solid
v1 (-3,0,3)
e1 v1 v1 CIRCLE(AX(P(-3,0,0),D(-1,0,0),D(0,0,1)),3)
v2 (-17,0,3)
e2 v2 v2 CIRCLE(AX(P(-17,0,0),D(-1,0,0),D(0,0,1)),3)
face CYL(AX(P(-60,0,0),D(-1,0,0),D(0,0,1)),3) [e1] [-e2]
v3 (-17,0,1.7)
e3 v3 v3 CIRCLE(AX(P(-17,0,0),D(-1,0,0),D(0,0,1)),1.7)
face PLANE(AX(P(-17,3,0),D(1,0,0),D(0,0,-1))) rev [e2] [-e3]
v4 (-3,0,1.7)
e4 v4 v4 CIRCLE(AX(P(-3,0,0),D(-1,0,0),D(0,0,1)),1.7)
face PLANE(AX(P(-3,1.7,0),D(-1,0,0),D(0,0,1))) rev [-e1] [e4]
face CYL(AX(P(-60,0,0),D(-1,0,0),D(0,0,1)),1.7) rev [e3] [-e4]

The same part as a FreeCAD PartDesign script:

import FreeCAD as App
import Part
import Sketcher

V = App.Vector
Q = App.Units.Quantity


def add_polygon(sketch, points):
    """Adds a closed chain of lines whose ends are joined by coincident constraints."""
    first, n = sketch.GeometryCount, len(points)
    for a, b in zip(points, points[1:] + points[:1]):
        sketch.addGeometry(Part.LineSegment(App.Vector(*a, 0), App.Vector(*b, 0)), False)
    for i in range(n):
        sketch.addConstraint(Sketcher.Constraint("Coincident", first + i, 2, first + (i + 1) % n, 1))

doc = App.newDocument("Part")
body = doc.addObject("PartDesign::Body", "Body")

sketch1 = body.newObject("Sketcher::SketchObject", "Sketch")
sketch1.AttachmentSupport = (doc.getObject("XY_Plane"), [""])
sketch1.MapMode = "FlatFace"
add_polygon(sketch1, [(-17, 3), (-17, 1.7), (-3, 1.7), (-3, 3)])
sketch1.addConstraint([
    Sketcher.Constraint("Vertical", 0),
    Sketcher.Constraint("Horizontal", 1),
    Sketcher.Constraint("Vertical", 2),
    Sketcher.Constraint("Horizontal", 3),
    Sketcher.Constraint("DistanceX", 1, 1, 1, 2, Q("14 mm")),
    Sketcher.Constraint("DistanceY", 0, 2, 0, 1, Q("1.3 mm")),
    Sketcher.Constraint("DistanceX", 0, 2, -1, 1, Q("17 mm")),
    Sketcher.Constraint("DistanceY", -1, 1, 2, 2, Q("3 mm")),
])
revolution = body.newObject("PartDesign::Revolution", "Revolution")
revolution.Profile = sketch1
revolution.ReferenceAxis = (sketch1, ["H_Axis"])
revolution.Angle = 360

doc.recompute()
